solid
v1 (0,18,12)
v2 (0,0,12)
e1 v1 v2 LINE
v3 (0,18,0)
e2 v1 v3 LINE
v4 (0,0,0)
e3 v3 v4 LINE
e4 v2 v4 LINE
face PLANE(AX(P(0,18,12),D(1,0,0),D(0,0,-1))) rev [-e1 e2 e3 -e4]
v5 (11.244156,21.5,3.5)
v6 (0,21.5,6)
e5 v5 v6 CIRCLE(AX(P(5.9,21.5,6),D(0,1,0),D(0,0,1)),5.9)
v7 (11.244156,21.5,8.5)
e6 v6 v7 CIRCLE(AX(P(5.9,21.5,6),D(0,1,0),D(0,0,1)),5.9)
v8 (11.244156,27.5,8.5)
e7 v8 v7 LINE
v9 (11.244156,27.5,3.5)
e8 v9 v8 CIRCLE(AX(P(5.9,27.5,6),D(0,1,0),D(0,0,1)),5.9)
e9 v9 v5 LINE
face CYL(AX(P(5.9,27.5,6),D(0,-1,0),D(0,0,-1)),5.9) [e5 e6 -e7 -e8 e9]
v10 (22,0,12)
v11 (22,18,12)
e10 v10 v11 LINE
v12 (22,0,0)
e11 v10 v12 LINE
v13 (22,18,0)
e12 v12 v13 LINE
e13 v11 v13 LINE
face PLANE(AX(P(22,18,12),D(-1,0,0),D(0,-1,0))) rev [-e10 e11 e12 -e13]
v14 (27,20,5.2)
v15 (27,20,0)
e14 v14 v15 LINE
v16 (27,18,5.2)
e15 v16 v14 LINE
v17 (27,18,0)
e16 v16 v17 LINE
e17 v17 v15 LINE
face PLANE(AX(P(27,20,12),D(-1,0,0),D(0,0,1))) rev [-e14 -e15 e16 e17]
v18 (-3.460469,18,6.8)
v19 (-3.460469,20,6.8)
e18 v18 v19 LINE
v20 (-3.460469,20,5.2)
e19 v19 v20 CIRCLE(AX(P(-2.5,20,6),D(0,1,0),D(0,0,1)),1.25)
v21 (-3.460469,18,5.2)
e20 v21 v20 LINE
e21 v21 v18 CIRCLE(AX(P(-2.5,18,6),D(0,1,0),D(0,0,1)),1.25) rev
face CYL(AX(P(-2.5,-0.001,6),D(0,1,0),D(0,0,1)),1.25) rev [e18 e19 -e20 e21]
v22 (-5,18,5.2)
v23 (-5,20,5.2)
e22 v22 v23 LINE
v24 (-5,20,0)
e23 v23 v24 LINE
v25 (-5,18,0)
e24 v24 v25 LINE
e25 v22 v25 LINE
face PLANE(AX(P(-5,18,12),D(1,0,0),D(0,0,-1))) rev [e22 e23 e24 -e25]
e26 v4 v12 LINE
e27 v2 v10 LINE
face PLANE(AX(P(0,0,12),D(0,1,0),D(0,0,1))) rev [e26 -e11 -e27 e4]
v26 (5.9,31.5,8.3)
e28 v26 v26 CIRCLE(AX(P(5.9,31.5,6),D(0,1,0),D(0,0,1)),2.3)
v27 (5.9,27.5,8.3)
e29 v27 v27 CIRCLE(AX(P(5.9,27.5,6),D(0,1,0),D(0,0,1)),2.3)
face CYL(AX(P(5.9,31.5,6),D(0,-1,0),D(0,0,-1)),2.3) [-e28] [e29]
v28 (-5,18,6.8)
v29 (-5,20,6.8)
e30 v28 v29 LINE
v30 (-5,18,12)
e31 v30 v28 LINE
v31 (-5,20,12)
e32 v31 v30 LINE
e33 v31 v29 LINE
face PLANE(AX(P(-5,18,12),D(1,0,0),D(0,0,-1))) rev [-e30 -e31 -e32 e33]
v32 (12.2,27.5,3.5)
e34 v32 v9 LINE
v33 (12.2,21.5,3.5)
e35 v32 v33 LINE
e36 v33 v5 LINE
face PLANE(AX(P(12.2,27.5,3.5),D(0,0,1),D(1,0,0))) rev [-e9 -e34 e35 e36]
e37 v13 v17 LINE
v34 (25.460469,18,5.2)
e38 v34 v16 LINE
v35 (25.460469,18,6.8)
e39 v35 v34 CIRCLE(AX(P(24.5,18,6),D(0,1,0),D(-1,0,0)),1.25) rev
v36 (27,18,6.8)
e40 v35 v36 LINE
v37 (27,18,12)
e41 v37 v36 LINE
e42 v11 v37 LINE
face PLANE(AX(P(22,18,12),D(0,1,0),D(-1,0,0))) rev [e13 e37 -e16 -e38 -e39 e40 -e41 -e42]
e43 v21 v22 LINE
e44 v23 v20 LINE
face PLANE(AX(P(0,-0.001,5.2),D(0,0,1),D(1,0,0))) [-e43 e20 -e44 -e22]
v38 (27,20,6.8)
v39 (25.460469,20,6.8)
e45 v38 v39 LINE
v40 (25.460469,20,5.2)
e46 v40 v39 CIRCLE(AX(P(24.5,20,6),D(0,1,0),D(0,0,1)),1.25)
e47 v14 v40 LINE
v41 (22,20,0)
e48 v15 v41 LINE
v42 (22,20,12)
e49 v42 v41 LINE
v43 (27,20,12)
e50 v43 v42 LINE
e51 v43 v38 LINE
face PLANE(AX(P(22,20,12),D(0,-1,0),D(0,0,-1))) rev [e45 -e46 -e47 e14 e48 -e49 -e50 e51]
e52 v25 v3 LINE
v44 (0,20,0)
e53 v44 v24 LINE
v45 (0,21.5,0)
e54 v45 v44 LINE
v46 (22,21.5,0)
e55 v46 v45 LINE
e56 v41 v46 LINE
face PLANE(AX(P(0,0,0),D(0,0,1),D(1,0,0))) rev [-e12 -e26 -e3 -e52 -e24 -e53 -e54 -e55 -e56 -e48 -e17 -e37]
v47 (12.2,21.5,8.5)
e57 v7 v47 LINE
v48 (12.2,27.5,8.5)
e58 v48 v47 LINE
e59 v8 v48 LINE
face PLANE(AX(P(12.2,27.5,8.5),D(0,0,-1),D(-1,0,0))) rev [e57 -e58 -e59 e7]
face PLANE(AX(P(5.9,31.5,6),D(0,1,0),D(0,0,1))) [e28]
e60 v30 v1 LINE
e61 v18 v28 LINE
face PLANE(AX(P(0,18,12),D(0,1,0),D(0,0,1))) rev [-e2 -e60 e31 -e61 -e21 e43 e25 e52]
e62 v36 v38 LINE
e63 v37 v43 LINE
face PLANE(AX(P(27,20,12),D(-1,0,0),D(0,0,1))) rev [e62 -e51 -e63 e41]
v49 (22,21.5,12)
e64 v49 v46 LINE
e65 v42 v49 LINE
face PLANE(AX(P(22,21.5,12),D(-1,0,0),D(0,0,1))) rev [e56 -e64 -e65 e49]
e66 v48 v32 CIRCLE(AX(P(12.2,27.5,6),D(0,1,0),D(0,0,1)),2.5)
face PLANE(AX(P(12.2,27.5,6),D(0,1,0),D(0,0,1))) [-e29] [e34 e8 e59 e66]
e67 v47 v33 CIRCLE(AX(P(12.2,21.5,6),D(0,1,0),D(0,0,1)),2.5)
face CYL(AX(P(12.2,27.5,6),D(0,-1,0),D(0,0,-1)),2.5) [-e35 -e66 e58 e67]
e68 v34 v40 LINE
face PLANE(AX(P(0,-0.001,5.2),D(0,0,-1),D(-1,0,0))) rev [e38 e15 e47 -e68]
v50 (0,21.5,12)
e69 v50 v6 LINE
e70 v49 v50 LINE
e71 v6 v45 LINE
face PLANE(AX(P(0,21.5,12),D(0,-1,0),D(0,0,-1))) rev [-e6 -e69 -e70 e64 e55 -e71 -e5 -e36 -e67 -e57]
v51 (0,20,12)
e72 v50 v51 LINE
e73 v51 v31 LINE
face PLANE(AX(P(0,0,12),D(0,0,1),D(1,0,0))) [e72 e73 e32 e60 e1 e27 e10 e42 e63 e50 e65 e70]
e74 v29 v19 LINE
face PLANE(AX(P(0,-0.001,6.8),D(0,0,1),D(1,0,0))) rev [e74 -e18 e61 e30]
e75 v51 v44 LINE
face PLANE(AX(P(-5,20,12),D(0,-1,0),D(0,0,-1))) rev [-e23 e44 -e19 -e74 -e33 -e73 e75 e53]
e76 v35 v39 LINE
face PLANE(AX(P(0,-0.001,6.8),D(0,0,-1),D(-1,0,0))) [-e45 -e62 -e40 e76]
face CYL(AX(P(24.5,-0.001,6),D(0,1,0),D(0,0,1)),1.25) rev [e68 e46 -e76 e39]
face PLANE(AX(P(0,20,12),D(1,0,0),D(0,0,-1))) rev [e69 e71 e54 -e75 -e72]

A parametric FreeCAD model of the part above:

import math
import FreeCAD as App
import Part
import Sketcher
from FreeCAD import Vector


def add_polygon(sketch, points):
    """Adds a closed chain of lines whose ends are joined by coincident constraints."""
    first, n = sketch.GeometryCount, len(points)
    for a, b in zip(points, points[1:] + points[:1]):
        sketch.addGeometry(Part.LineSegment(App.Vector(*a, 0), App.Vector(*b, 0)), False)
    for i in range(n):
        sketch.addConstraint(Sketcher.Constraint("Coincident", first + i, 2, first + (i + 1) % n, 1))

doc = App.newDocument("Part")
body = doc.addObject("PartDesign::Body", "Body")

sketch1 = doc.addObject("Sketcher::SketchObject", "Sketch")
body.addObject(sketch1)
sketch1.AttachmentSupport = (doc.XY_Plane, [""])
sketch1.MapMode = "FlatFace"
add_polygon(sketch1, [(0, 0), (22, 0), (22, 18), (27, 18), (27, 20), (22, 20), (22, 21.5), (0, 21.5), (0, 20), (-5, 20), (-5, 18), (0, 18)])
sketch1.addConstraint([
    Sketcher.Constraint("Horizontal", 0),
    Sketcher.Constraint("Vertical", 1),
    Sketcher.Constraint("Horizontal", 2),
    Sketcher.Constraint("Vertical", 3),
    Sketcher.Constraint("Horizontal", 4),
    Sketcher.Constraint("Vertical", 5),
    Sketcher.Constraint("Horizontal", 6),
    Sketcher.Constraint("Vertical", 7),
    Sketcher.Constraint("Horizontal", 8),
    Sketcher.Constraint("Vertical", 9),
    Sketcher.Constraint("Horizontal", 10),
    Sketcher.Constraint("Vertical", 11),
    Sketcher.Constraint("Coincident", 11, 2, -1, 1),
    Sketcher.Constraint("PointOnObject", 6, 2, -2),
    Sketcher.Constraint("Horizontal", 4, 2, 7, 2),
    Sketcher.Constraint("Horizontal", 2, 2, 9, 2),
    Sketcher.Constraint("Vertical", 1, 2, 4, 2),
    Sketcher.Constraint("Equal", 4, 8),
    Sketcher.Constraint("DistanceX", 0, 1, 0, 2, 22.0),
    Sketcher.Constraint("DistanceX", 2, 1, 2, 2, 5.0),
    Sketcher.Constraint("DistanceY", 1, 1, 1, 2, 18.0),
    Sketcher.Constraint("DistanceY", 3, 1, 3, 2, 2.0),
    Sketcher.Constraint("DistanceY", 5, 1, 5, 2, 1.5),
])
pad1 = doc.addObject("PartDesign::Pad", "Pad")
body.addObject(pad1)
pad1.Profile = sketch1
pad1.Length = 12

sketch2 = doc.addObject("Sketcher::SketchObject", "Sketch001")
body.addObject(sketch2)
sketch2.AttachmentSupport = (doc.XZ_Plane, [""])
sketch2.MapMode = "FlatFace"
sketch2.AttachmentOffset = App.Placement(Vector(0, 0, -21.5), App.Rotation())
sketch2.addGeometry([
    Part.LineSegment(Vector(12.2, 3.5, 0), Vector(11.244156, 3.5, 0)),
    Part.ArcOfCircle(Part.Circle(Vector(5.9, 6, 0), Vector(0, 0, 1), 5.9), math.radians(25.070228), math.radians(334.929772)),
    Part.LineSegment(Vector(11.244156, 8.5, 0), Vector(12.2, 8.5, 0)),
    Part.ArcOfCircle(Part.Circle(Vector(12.2, 6, 0), Vector(0, 0, 1), 2.5), math.radians(-90), math.radians(90)),
    Part.Circle(Vector(5.9, 6, 0), Vector(0, 0, 1), 2.3),
], False)
sketch2.addConstraint([
    Sketcher.Constraint("Coincident", 0, 2, 1, 2),
    Sketcher.Constraint("Coincident", 1, 1, 2, 1),
    Sketcher.Constraint("Tangent", 2, 2, 3, 2),
    Sketcher.Constraint("Tangent", 3, 1, 0, 1),
    Sketcher.Constraint("Horizontal", 0),
    Sketcher.Constraint("Horizontal", 2),
    Sketcher.Constraint("Coincident", 4, 3, 1, 3),
    Sketcher.Constraint("Horizontal", 1, 3, 3, 3),
    Sketcher.Constraint("Diameter", 4, 4.6),
    Sketcher.Constraint("Radius", 1, 5.9),
    Sketcher.Constraint("Radius", 3, 2.5),
    Sketcher.Constraint("DistanceY", -1, 1, 1, 3, 6.0),
    Sketcher.Constraint("DistanceX", -1, 1, 1, 3, 5.9),
    Sketcher.Constraint("DistanceX", -1, 1, 3, 3, 12.2),
])
pad2 = doc.addObject("PartDesign::Pad", "Pad001")
body.addObject(pad2)
pad2.Profile = sketch2
pad2.Length = 6
pad2.Reversed = True

sketch3 = doc.addObject("Sketcher::SketchObject", "Sketch002")
body.addObject(sketch3)
sketch3.AttachmentSupport = (doc.XZ_Plane, [""])
sketch3.MapMode = "FlatFace"
sketch3.AttachmentOffset = App.Placement(Vector(0, 0, -21.5), App.Rotation())
sketch3.addGeometry(Part.Circle(Vector(5.9, 6, 0), Vector(0, 0, 1), 2.3), False)
sketch3.addConstraint([
    Sketcher.Constraint("Diameter", 0, 4.6),
    Sketcher.Constraint("DistanceY", -1, 1, 0, 3, 6.0),
    Sketcher.Constraint("DistanceX", -1, 1, 0, 3, 5.9),
])
pad3 = doc.addObject("PartDesign::Pad", "Pad002")
body.addObject(pad3)
pad3.Profile = sketch3
pad3.Length = 10
pad3.Reversed = True

sketch4 = doc.addObject("Sketcher::SketchObject", "Sketch003")
body.addObject(sketch4)
sketch4.AttachmentSupport = (doc.XZ_Plane, [""])
sketch4.MapMode = "FlatFace"
sketch4.AttachmentOffset = App.Placement(Vector(0, 0, -20), App.Rotation())
sketch4.addGeometry([
    Part.LineSegment(Vector(27, 6.8, 0), Vector(27, 5.2, 0)),
    Part.LineSegment(Vector(27, 5.2, 0), Vector(25.460469, 5.2, 0)),
    Part.ArcOfCircle(Part.Circle(Vector(24.5, 6, 0), Vector(0, 0, 1), 1.25), math.radians(39.791819), math.radians(320.208181)),
    Part.LineSegment(Vector(25.460469, 6.8, 0), Vector(27, 6.8, 0)),
], False)
sketch4.addConstraint([
    Sketcher.Constraint("Coincident", 0, 2, 1, 1),
    Sketcher.Constraint("Coincident", 1, 2, 2, 2),
    Sketcher.Constraint("Coincident", 2, 1, 3, 1),
    Sketcher.Constraint("Coincident", 3, 2, 0, 1),
    Sketcher.Constraint("Vertical", 0),
    Sketcher.Constraint("Horizontal", 1),
    Sketcher.Constraint("Horizontal", 3),
    Sketcher.Constraint("Vertical", 1, 2, 2, 1),
    Sketcher.Constraint("Radius", 2, 1.25),
    Sketcher.Constraint("DistanceY", 0, 2, 0, 1, 1.6),
    Sketcher.Constraint("DistanceY", -1, 1, 2, 3, 6.0),
    Sketcher.Constraint("DistanceX", -1, 1, 0, 2, 27.0),
    Sketcher.Constraint("DistanceX", -1, 1, 2, 3, 24.5),
])
pocket1 = doc.addObject("PartDesign::Pocket", "Pocket")
body.addObject(pocket1)
pocket1.Profile = sketch4
pocket1.Type = "UpToFirst"
pocket1.Reversed = True

sketch5 = doc.addObject("Sketcher::SketchObject", "Sketch004")
body.addObject(sketch5)
sketch5.AttachmentSupport = (doc.XZ_Plane, [""])
sketch5.MapMode = "FlatFace"
sketch5.AttachmentOffset = App.Placement(Vector(0, 0, -20), App.Rotation())
sketch5.addGeometry([
    Part.LineSegment(Vector(-5, 5.2, 0), Vector(-5, 6.8, 0)),
    Part.LineSegment(Vector(-5, 6.8, 0), Vector(-3.460469, 6.8, 0)),
    Part.ArcOfCircle(Part.Circle(Vector(-2.5, 6, 0), Vector(0, 0, 1), 1.25), math.radians(-140.208181), math.radians(140.208181)),
    Part.LineSegment(Vector(-3.460469, 5.2, 0), Vector(-5, 5.2, 0)),
], False)
sketch5.addConstraint([
    Sketcher.Constraint("Coincident", 0, 2, 1, 1),
    Sketcher.Constraint("Coincident", 1, 2, 2, 2),
    Sketcher.Constraint("Coincident", 2, 1, 3, 1),
    Sketcher.Constraint("Coincident", 3, 2, 0, 1),
    Sketcher.Constraint("Vertical", 0),
    Sketcher.Constraint("Horizontal", 1),
    Sketcher.Constraint("Horizontal", 3),
    Sketcher.Constraint("Vertical", 1, 2, 2, 1),
    Sketcher.Constraint("Radius", 2, 1.25),
    Sketcher.Constraint("DistanceY", 0, 1, 0, 2, 1.6),
    Sketcher.Constraint("DistanceY", -1, 1, 2, 3, 6.0),
    Sketcher.Constraint("DistanceX", 0, 2, -1, 1, 5.0),
    Sketcher.Constraint("DistanceX", 2, 3, -1, 1, 2.5),
])
pocket2 = doc.addObject("PartDesign::Pocket", "Pocket001")
body.addObject(pocket2)
pocket2.Profile = sketch5
pocket2.Type = "UpToFirst"
pocket2.Reversed = True

doc.recompute()
